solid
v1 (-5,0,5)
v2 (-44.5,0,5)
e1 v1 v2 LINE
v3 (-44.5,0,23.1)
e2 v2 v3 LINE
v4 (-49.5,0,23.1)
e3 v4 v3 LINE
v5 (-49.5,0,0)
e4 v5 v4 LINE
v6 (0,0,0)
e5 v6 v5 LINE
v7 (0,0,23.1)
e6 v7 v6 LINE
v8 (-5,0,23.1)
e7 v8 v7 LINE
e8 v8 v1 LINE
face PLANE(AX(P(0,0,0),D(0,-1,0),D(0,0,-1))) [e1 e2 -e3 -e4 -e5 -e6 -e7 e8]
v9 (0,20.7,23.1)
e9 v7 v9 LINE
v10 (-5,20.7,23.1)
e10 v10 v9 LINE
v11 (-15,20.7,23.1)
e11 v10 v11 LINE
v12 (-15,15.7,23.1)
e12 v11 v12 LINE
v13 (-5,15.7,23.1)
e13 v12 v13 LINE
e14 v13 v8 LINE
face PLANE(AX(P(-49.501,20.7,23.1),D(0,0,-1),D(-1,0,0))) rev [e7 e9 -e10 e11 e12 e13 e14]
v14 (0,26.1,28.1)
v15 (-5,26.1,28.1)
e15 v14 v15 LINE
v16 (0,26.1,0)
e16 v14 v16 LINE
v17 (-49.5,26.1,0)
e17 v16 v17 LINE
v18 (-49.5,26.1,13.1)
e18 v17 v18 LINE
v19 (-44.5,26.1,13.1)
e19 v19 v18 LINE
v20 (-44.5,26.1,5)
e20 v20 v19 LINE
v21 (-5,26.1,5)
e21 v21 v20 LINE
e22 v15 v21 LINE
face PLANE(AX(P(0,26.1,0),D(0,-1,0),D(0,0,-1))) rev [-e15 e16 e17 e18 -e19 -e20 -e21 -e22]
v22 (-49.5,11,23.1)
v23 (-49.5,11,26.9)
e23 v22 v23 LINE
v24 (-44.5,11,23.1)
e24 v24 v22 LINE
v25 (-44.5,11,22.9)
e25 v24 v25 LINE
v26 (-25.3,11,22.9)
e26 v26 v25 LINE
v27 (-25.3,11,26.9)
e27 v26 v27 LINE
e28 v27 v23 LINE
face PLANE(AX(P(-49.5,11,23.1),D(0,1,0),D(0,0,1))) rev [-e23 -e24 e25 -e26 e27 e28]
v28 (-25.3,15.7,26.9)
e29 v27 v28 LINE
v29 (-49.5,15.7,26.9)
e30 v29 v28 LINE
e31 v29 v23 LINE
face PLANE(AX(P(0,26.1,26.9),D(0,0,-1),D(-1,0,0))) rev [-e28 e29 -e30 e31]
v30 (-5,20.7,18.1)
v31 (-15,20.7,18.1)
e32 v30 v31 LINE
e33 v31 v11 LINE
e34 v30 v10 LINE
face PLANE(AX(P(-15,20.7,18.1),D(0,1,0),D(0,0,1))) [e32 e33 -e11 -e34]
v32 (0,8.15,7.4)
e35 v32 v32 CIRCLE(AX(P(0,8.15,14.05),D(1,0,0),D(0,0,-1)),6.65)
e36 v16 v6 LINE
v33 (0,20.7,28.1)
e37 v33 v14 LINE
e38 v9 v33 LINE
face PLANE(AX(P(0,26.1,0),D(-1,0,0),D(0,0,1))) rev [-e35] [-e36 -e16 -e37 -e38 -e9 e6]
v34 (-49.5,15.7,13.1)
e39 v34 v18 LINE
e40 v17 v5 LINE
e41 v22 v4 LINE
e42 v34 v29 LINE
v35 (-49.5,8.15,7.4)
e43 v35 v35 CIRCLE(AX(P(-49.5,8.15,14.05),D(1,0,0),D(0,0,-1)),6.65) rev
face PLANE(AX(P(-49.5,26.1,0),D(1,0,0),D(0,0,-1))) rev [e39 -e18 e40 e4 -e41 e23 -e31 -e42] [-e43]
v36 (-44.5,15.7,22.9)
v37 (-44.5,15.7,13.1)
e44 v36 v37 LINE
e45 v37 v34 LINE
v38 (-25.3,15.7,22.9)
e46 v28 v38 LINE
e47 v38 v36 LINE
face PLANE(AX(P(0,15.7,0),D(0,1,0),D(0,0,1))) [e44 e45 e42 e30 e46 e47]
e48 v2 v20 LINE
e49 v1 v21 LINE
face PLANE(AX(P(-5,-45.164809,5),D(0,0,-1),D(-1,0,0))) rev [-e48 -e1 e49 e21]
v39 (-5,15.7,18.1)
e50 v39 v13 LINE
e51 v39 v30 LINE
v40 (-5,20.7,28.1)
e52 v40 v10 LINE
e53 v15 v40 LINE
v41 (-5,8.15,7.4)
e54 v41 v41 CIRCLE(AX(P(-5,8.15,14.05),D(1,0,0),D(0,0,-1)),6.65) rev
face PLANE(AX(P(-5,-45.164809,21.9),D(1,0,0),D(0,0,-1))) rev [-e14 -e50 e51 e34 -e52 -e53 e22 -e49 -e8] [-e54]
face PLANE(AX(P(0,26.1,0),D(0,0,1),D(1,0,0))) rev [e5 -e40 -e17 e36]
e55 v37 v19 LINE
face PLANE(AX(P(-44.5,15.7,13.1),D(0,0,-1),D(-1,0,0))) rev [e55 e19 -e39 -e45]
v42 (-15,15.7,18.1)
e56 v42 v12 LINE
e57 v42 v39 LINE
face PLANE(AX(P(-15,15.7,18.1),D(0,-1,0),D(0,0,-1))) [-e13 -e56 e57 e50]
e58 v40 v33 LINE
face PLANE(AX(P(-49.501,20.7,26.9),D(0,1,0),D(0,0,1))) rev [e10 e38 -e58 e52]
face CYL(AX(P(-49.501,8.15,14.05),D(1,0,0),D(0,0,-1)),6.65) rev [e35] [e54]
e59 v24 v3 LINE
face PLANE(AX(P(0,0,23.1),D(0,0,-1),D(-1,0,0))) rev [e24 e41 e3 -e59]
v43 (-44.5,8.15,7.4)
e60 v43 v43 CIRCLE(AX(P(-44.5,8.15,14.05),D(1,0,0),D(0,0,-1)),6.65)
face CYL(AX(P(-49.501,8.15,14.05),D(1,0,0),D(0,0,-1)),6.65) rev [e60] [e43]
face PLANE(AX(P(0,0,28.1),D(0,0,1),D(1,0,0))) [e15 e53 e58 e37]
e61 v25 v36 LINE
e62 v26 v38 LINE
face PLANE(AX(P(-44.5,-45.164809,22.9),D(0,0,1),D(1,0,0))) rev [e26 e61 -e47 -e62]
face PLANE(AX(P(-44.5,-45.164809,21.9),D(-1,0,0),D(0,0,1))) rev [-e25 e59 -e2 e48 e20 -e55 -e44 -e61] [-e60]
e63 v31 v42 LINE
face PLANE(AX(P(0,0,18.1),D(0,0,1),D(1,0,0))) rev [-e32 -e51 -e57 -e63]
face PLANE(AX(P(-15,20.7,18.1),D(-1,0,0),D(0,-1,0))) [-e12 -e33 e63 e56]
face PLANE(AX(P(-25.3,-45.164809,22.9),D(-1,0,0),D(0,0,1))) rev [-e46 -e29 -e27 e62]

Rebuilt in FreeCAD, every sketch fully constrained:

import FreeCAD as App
import Part
import Sketcher

V = App.Vector

doc = App.newDocument("Part")
body = doc.addObject("PartDesign::Body", "Body")

sketch1 = body.newObject("Sketcher::SketchObject", "Sketch")
sketch1.AttachmentSupport = (doc.getObject("XZ_Plane"), [""])
sketch1.MapMode = "FlatFace"
sketch1.addGeometry([
    Part.LineSegment(V(-50, 0, 0), V(-50, 27, 0)),
    Part.LineSegment(V(-50, 27, 0), V(0, 27, 0)),
    Part.LineSegment(V(0, 27, 0), V(0, 0, 0)),
    Part.LineSegment(V(0, 0, 0), V(-50, 0, 0)),
], False)
sketch1.addConstraint([
    Sketcher.Constraint("Coincident", 0, 2, 1, 1),
    Sketcher.Constraint("Coincident", 1, 2, 2, 1),
    Sketcher.Constraint("Coincident", 2, 2, 3, 1),
    Sketcher.Constraint("Coincident", 3, 2, 0, 1),
    Sketcher.Constraint("Vertical", 0),
    Sketcher.Constraint("Horizontal", 1),
    Sketcher.Constraint("Vertical", 2),
    Sketcher.Constraint("Horizontal", 3),
    Sketcher.Constraint("Coincident", 2, 2, -1, 1),
    Sketcher.Constraint("DistanceX", 1, 1, 1, 2, 49.5),
    Sketcher.Constraint("DistanceY", 0, 1, 0, 2, 26.9),
])
pad1 = body.newObject("PartDesign::Pad", "Pad")
pad1.Profile = sketch1
pad1.Length = 26.1
pad1.Reversed = True

sketch2 = body.newObject("Sketcher::SketchObject", "Sketch001")
sketch2.AttachmentSupport = (doc.getObject("XZ_Plane"), [""])
sketch2.MapMode = "FlatFace"
sketch2.AttachmentOffset = App.Placement(V(0, 0, -26.1), App.Rotation())
sketch2.addGeometry([
    Part.LineSegment(V(-44.5, 22.9, 0), V(-25.3, 22.9, 0)),
    Part.LineSegment(V(-25.3, 22.9, 0), V(-25.3, 26.9, 0)),
    Part.LineSegment(V(-25.3, 26.9, 0), V(-5, 26.9, 0)),
    Part.LineSegment(V(-5, 26.9, 0), V(-5, 5, 0)),
    Part.LineSegment(V(-5, 5, 0), V(-44.5, 5, 0)),
    Part.LineSegment(V(-44.5, 5, 0), V(-44.5, 22.9, 0)),
], False)
sketch2.addConstraint([
    Sketcher.Constraint("Coincident", 0, 2, 1, 1),
    Sketcher.Constraint("Coincident", 1, 2, 2, 1),
    Sketcher.Constraint("Coincident", 2, 2, 3, 1),
    Sketcher.Constraint("Coincident", 3, 2, 4, 1),
    Sketcher.Constraint("Coincident", 4, 2, 5, 1),
    Sketcher.Constraint("Coincident", 5, 2, 0, 1),
    Sketcher.Constraint("Horizontal", 0),
    Sketcher.Constraint("Vertical", 1),
    Sketcher.Constraint("Horizontal", 2),
    Sketcher.Constraint("Vertical", 3),
    Sketcher.Constraint("Horizontal", 4),
    Sketcher.Constraint("Vertical", 5),
    Sketcher.Constraint("DistanceY", 1, 1, 1, 2, 4.0),
    Sketcher.Constraint("DistanceX", 0, 1, 0, 2, 19.2),
    Sketcher.Constraint("DistanceX", 2, 1, 2, 2, 20.3),
    Sketcher.Constraint("DistanceY", 3, 2, 3, 1, 21.9),
    Sketcher.Constraint("DistanceX", 2, 2, -1, 1, 5.0),
    Sketcher.Constraint("DistanceY", -1, 1, 3, 2, 5.0),
])
pocket1 = body.newObject("PartDesign::Pocket", "Pocket")
pocket1.Profile = sketch2
pocket1.Length = 26.1
pocket1.Reversed = True

sketch3 = body.newObject("Sketcher::SketchObject", "Sketch002")
sketch3.AttachmentSupport = (doc.getObject("YZ_Plane"), [""])
sketch3.MapMode = "FlatFace"
sketch3.AttachmentOffset = App.Placement(V(0, 0, -44.5), App.Rotation())
sketch3.addGeometry(Part.Circle(V(8, 14, 0), V(0, 0, 1), 7), False)
sketch3.addConstraint([
    Sketcher.Constraint("Diameter", 0, 13.3),
    Sketcher.Constraint("DistanceX", -1, 1, 0, 3, 8.15),
    Sketcher.Constraint("DistanceY", -1, 1, 0, 3, 14.05),
])
pocket2 = body.newObject("PartDesign::Pocket", "Pocket001")
pocket2.Profile = sketch3
pocket2.Type = "UpToFirst"

sketch4 = body.newObject("Sketcher::SketchObject", "Sketch003")
sketch4.AttachmentSupport = (doc.getObject("YZ_Plane"), [""])
sketch4.MapMode = "FlatFace"
sketch4.addGeometry(Part.Circle(V(8, 14, 0), V(0, 0, 1), 7), False)
sketch4.addConstraint([
    Sketcher.Constraint("Diameter", 0, 13.3),
    Sketcher.Constraint("DistanceX", -1, 1, 0, 3, 8.15),
    Sketcher.Constraint("DistanceY", -1, 1, 0, 3, 14.05),
])
pocket3 = body.newObject("PartDesign::Pocket", "Pocket002")
pocket3.Profile = sketch4
pocket3.Type = "UpToFirst"

sketch5 = body.newObject("Sketcher::SketchObject", "Sketch004")
sketch5.AttachmentSupport = (doc.getObject("XZ_Plane"), [""])
sketch5.MapMode = "FlatFace"
sketch5.AttachmentOffset = App.Placement(V(0, 0, -26.1), App.Rotation())
sketch5.addGeometry([
    Part.LineSegment(V(-44.5, 13.1, 0), V(-49.5, 13.1, 0)),
    Part.LineSegment(V(-49.5, 13.1, 0), V(-49.5, 26.9, 0)),
    Part.LineSegment(V(-49.5, 26.9, 0), V(-25.3, 26.9, 0)),
    Part.LineSegment(V(-25.3, 26.9, 0), V(-25.3, 22.9, 0)),
    Part.LineSegment(V(-25.3, 22.9, 0), V(-44.5, 22.9, 0)),
    Part.LineSegment(V(-44.5, 22.9, 0), V(-44.5, 13.1, 0)),
], False)
sketch5.addConstraint([
    Sketcher.Constraint("Coincident", 0, 2, 1, 1),
    Sketcher.Constraint("Coincident", 1, 2, 2, 1),
    Sketcher.Constraint("Coincident", 2, 2, 3, 1),
    Sketcher.Constraint("Coincident", 3, 2, 4, 1),
    Sketcher.Constraint("Coincident", 4, 2, 5, 1),
    Sketcher.Constraint("Coincident", 5, 2, 0, 1),
    Sketcher.Constraint("Horizontal", 0),
    Sketcher.Constraint("Vertical", 1),
    Sketcher.Constraint("Horizontal", 2),
    Sketcher.Constraint("Vertical", 3),
    Sketcher.Constraint("Horizontal", 4),
    Sketcher.Constraint("Vertical", 5),
    Sketcher.Constraint("DistanceX", 0, 2, 0, 1, 5.0),
    Sketcher.Constraint("DistanceY", 3, 2, 3, 1, 4.0),
    Sketcher.Constraint("DistanceX", 2, 1, 2, 2, 24.2),
    Sketcher.Constraint("DistanceY", 1, 1, 1, 2, 13.8),
    Sketcher.Constraint("DistanceX", 0, 2, -1, 1, 49.5),
    Sketcher.Constraint("DistanceY", -1, 1, 0, 2, 13.1),
])
pocket4 = body.newObject("PartDesign::Pocket", "Pocket003")
pocket4.Profile = sketch5
pocket4.Length = 10.4
pocket4.Reversed = True

sketch6 = body.newObject("Sketcher::SketchObject", "Sketch005")
sketch6.AttachmentSupport = (doc.getObject("XY_Plane"), [""])
sketch6.MapMode = "FlatFace"
sketch6.AttachmentOffset = App.Placement(V(0, 0, 26.9), App.Rotation())
sketch6.addGeometry([
    Part.LineSegment(V(-50, 11, 0), V(-50, 0, 0)),
    Part.LineSegment(V(-50, 0, 0), V(-25, 0, 0)),
    Part.LineSegment(V(-25, 0, 0), V(-25, 11, 0)),
    Part.LineSegment(V(-25, 11, 0), V(-50, 11, 0)),
], False)
sketch6.addConstraint([
    Sketcher.Constraint("Coincident", 0, 2, 1, 1),
    Sketcher.Constraint("Coincident", 1, 2, 2, 1),
    Sketcher.Constraint("Coincident", 2, 2, 3, 1),
    Sketcher.Constraint("Coincident", 3, 2, 0, 1),
    Sketcher.Constraint("Vertical", 0),
    Sketcher.Constraint("Horizontal", 1),
    Sketcher.Constraint("Vertical", 2),
    Sketcher.Constraint("Horizontal", 3),
    Sketcher.Constraint("PointOnObject", 0, 2, -1),
    Sketcher.Constraint("DistanceY", 0, 2, 0, 1, 11.0),
    Sketcher.Constraint("DistanceX", 1, 1, 1, 2, 24.2),
    Sketcher.Constraint("DistanceX", 0, 2, -1, 1, 49.5),
])
pocket5 = body.newObject("PartDesign::Pocket", "Pocket004")
pocket5.Profile = sketch6
pocket5.Length = 3.8

sketch7 = body.newObject("Sketcher::SketchObject", "Sketch006")
sketch7.AttachmentSupport = (doc.getObject("XY_Plane"), [""])
sketch7.MapMode = "FlatFace"
sketch7.AttachmentOffset = App.Placement(V(0, 0, 22.9), App.Rotation())
sketch7.addGeometry([
    Part.LineSegment(V(-25, 11, 0), V(-25, 0, 0)),
    Part.LineSegment(V(-25, 0, 0), V(-44, 0, 0)),
    Part.LineSegment(V(-44, 0, 0), V(-44, 11, 0)),
    Part.LineSegment(V(-44, 11, 0), V(-25, 11, 0)),
], False)
sketch7.addConstraint([
    Sketcher.Constraint("Coincident", 0, 2, 1, 1),
    Sketcher.Constraint("Coincident", 1, 2, 2, 1),
    Sketcher.Constraint("Coincident", 2, 2, 3, 1),
    Sketcher.Constraint("Coincident", 3, 2, 0, 1),
    Sketcher.Constraint("Vertical", 0),
    Sketcher.Constraint("Horizontal", 1),
    Sketcher.Constraint("Vertical", 2),
    Sketcher.Constraint("Horizontal", 3),
    Sketcher.Constraint("PointOnObject", 0, 2, -1),
    Sketcher.Constraint("DistanceY", 0, 2, 0, 1, 11.0),
    Sketcher.Constraint("DistanceX", 1, 2, 1, 1, 19.2),
    Sketcher.Constraint("DistanceX", 0, 2, -1, 1, 25.3),
])
pocket6 = body.newObject("PartDesign::Pocket", "Pocket005")
pocket6.Profile = sketch7
pocket6.Length = 0.2
pocket6.Reversed = True

sketch8 = body.newObject("Sketcher::SketchObject", "Sketch007")
sketch8.AttachmentSupport = (doc.getObject("YZ_Plane"), [""])
sketch8.MapMode = "FlatFace"
sketch8.addGeometry([
    Part.LineSegment(V(20.7, 26.9, 0), V(0, 26.9, 0)),
    Part.LineSegment(V(0, 26.9, 0), V(0, 23.1, 0)),
    Part.LineSegment(V(0, 23.1, 0), V(20.7, 23.1, 0)),
    Part.LineSegment(V(20.7, 23.1, 0), V(20.7, 26.9, 0)),
], False)
sketch8.addConstraint([
    Sketcher.Constraint("Coincident", 0, 2, 1, 1),
    Sketcher.Constraint("Coincident", 1, 2, 2, 1),
    Sketcher.Constraint("Coincident", 2, 2, 3, 1),
    Sketcher.Constraint("Coincident", 3, 2, 0, 1),
    Sketcher.Constraint("Horizontal", 0),
    Sketcher.Constraint("Vertical", 1),
    Sketcher.Constraint("Horizontal", 2),
    Sketcher.Constraint("Vertical", 3),
    Sketcher.Constraint("PointOnObject", 0, 2, -2),
    Sketcher.Constraint("DistanceX", 0, 2, 0, 1, 20.7),
    Sketcher.Constraint("DistanceY", 1, 2, 1, 1, 3.8),
    Sketcher.Constraint("DistanceY", -1, 1, 0, 2, 26.9),
])
pocket7 = body.newObject("PartDesign::Pocket", "Pocket006")
pocket7.Profile = sketch8
pocket7.Type = "UpToFirst"

sketch9 = body.newObject("Sketcher::SketchObject", "Sketch008")
sketch9.AttachmentSupport = (doc.getObject("XY_Plane"), [""])
sketch9.MapMode = "FlatFace"
sketch9.AttachmentOffset = App.Placement(V(0, 0, 23.1), App.Rotation())
sketch9.addGeometry([
    Part.LineSegment(V(-15, 21, 0), V(-15, 16, 0)),
    Part.LineSegment(V(-15, 16, 0), V(-5, 16, 0)),
    Part.LineSegment(V(-5, 16, 0), V(-5, 21, 0)),
    Part.LineSegment(V(-5, 21, 0), V(-15, 21, 0)),
], False)
sketch9.addConstraint([
    Sketcher.Constraint("Coincident", 0, 2, 1, 1),
    Sketcher.Constraint("Coincident", 1, 2, 2, 1),
    Sketcher.Constraint("Coincident", 2, 2, 3, 1),
    Sketcher.Constraint("Coincident", 3, 2, 0, 1),
    Sketcher.Constraint("Vertical", 0),
    Sketcher.Constraint("Horizontal", 1),
    Sketcher.Constraint("Vertical", 2),
    Sketcher.Constraint("Horizontal", 3),
    Sketcher.Constraint("DistanceX", 1, 1, 1, 2, 10.0),
    Sketcher.Constraint("DistanceY", 0, 2, 0, 1, 5.0),
    Sketcher.Constraint("DistanceX", 0, 2, -1, 1, 15.0),
    Sketcher.Constraint("DistanceY", -1, 1, 0, 2, 15.7),
])
pad2 = body.newObject("PartDesign::Pad", "Pad001")
pad2.Profile = sketch9
pad2.Length = 5
pad2.Reversed = True

sketch10 = body.newObject("Sketcher::SketchObject", "Sketch009")
sketch10.AttachmentSupport = (doc.getObject("XY_Plane"), [""])
sketch10.MapMode = "FlatFace"
sketch10.AttachmentOffset = App.Placement(V(0, 0, 26.9), App.Rotation())
sketch10.addGeometry([
    Part.LineSegment(V(-5, 26, 0), V(-5, 21, 0)),
    Part.LineSegment(V(-5, 21, 0), V(0, 21, 0)),
    Part.LineSegment(V(0, 21, 0), V(0, 26, 0)),
    Part.LineSegment(V(0, 26, 0), V(-5, 26, 0)),
], False)
sketch10.addConstraint([
    Sketcher.Constraint("Coincident", 0, 2, 1, 1),
    Sketcher.Constraint("Coincident", 1, 2, 2, 1),
    Sketcher.Constraint("Coincident", 2, 2, 3, 1),
    Sketcher.Constraint("Coincident", 3, 2, 0, 1),
    Sketcher.Constraint("Vertical", 0),
    Sketcher.Constraint("Horizontal", 1),
    Sketcher.Constraint("Vertical", 2),
    Sketcher.Constraint("Horizontal", 3),
    Sketcher.Constraint("PointOnObject", 1, 2, -2),
    Sketcher.Constraint("DistanceX", 1, 1, 1, 2, 5.0),
    Sketcher.Constraint("DistanceY", 0, 2, 0, 1, 5.4),
    Sketcher.Constraint("DistanceY", -1, 1, 0, 2, 20.7),
])
pad3 = body.newObject("PartDesign::Pad", "Pad002")
pad3.Profile = sketch10
pad3.Length = 1.2

doc.recompute()
